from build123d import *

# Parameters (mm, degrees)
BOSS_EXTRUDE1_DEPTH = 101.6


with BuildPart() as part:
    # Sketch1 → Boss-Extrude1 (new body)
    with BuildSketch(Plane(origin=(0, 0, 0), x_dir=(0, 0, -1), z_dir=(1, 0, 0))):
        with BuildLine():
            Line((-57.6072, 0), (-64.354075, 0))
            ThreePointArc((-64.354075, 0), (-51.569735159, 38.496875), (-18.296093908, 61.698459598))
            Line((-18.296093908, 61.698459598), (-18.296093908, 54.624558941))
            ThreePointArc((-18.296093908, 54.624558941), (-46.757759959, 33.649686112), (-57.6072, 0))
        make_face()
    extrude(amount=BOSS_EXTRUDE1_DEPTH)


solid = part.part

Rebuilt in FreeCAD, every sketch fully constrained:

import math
import FreeCAD as App
import Part
import Sketcher
from FreeCAD import Vector
Q = App.Units.Quantity

doc = App.newDocument("Part")
body = doc.addObject("PartDesign::Body", "Body")

# Sketch on YZ plane
sketch1 = body.newObject("Sketcher::SketchObject", "Sketch")
sketch1.AttachmentSupport = (doc.getObject("YZ_Plane"), [""])
sketch1.MapMode = "FlatFace"
sketch1.addGeometry(Part.LineSegment(Vector(0, 64.354075, 0), Vector(0, 57.6072, 0)), False)
sketch1.addGeometry(Part.ArcOfCircle(Part.Circle(Vector(0, 0, 0), Vector(0, 0, 1), 57.6072), math.radians(18.517894), math.radians(90)), False)
sketch1.addGeometry(Part.LineSegment(Vector(54.624559, 18.296094, 0), Vector(61.69846, 18.296094, 0)), False)
sketch1.addGeometry(Part.ArcOfCircle(Part.Circle(Vector(0, 0, 0), Vector(0, 0, 1), 64.354075), math.radians(16.517225), math.radians(90)), False)
sketch1.addConstraint(Sketcher.Constraint("Coincident", 0, 2, 1, 2))
sketch1.addConstraint(Sketcher.Constraint("Coincident", 1, 1, 2, 1))
sketch1.addConstraint(Sketcher.Constraint("Coincident", 2, 2, 3, 1))
sketch1.addConstraint(Sketcher.Constraint("Coincident", 3, 2, 0, 1))
sketch1.addConstraint(Sketcher.Constraint("Vertical", 0))
sketch1.addConstraint(Sketcher.Constraint("Horizontal", 2))
sketch1.addConstraint(Sketcher.Constraint("Coincident", 1, 3, -1, 1))
sketch1.addConstraint(Sketcher.Constraint("Coincident", 3, 3, -1, 1))
sketch1.addConstraint(Sketcher.Constraint("PointOnObject", 0, 2, -2))
sketch1.addConstraint(Sketcher.Constraint("Radius", 1, Q("2.268 in")))
sketch1.addConstraint(Sketcher.Constraint("DistanceY", 0, 2, 0, 1, Q("0.265625 in")))
sketch1.addConstraint(Sketcher.Constraint("DistanceX", 2, 1, 2, 2, Q("0.2785 in")))
pad1 = body.newObject("PartDesign::Pad", "Pad")
pad1.Profile = sketch1
pad1.Length = Q("4 in")

doc.recompute()
